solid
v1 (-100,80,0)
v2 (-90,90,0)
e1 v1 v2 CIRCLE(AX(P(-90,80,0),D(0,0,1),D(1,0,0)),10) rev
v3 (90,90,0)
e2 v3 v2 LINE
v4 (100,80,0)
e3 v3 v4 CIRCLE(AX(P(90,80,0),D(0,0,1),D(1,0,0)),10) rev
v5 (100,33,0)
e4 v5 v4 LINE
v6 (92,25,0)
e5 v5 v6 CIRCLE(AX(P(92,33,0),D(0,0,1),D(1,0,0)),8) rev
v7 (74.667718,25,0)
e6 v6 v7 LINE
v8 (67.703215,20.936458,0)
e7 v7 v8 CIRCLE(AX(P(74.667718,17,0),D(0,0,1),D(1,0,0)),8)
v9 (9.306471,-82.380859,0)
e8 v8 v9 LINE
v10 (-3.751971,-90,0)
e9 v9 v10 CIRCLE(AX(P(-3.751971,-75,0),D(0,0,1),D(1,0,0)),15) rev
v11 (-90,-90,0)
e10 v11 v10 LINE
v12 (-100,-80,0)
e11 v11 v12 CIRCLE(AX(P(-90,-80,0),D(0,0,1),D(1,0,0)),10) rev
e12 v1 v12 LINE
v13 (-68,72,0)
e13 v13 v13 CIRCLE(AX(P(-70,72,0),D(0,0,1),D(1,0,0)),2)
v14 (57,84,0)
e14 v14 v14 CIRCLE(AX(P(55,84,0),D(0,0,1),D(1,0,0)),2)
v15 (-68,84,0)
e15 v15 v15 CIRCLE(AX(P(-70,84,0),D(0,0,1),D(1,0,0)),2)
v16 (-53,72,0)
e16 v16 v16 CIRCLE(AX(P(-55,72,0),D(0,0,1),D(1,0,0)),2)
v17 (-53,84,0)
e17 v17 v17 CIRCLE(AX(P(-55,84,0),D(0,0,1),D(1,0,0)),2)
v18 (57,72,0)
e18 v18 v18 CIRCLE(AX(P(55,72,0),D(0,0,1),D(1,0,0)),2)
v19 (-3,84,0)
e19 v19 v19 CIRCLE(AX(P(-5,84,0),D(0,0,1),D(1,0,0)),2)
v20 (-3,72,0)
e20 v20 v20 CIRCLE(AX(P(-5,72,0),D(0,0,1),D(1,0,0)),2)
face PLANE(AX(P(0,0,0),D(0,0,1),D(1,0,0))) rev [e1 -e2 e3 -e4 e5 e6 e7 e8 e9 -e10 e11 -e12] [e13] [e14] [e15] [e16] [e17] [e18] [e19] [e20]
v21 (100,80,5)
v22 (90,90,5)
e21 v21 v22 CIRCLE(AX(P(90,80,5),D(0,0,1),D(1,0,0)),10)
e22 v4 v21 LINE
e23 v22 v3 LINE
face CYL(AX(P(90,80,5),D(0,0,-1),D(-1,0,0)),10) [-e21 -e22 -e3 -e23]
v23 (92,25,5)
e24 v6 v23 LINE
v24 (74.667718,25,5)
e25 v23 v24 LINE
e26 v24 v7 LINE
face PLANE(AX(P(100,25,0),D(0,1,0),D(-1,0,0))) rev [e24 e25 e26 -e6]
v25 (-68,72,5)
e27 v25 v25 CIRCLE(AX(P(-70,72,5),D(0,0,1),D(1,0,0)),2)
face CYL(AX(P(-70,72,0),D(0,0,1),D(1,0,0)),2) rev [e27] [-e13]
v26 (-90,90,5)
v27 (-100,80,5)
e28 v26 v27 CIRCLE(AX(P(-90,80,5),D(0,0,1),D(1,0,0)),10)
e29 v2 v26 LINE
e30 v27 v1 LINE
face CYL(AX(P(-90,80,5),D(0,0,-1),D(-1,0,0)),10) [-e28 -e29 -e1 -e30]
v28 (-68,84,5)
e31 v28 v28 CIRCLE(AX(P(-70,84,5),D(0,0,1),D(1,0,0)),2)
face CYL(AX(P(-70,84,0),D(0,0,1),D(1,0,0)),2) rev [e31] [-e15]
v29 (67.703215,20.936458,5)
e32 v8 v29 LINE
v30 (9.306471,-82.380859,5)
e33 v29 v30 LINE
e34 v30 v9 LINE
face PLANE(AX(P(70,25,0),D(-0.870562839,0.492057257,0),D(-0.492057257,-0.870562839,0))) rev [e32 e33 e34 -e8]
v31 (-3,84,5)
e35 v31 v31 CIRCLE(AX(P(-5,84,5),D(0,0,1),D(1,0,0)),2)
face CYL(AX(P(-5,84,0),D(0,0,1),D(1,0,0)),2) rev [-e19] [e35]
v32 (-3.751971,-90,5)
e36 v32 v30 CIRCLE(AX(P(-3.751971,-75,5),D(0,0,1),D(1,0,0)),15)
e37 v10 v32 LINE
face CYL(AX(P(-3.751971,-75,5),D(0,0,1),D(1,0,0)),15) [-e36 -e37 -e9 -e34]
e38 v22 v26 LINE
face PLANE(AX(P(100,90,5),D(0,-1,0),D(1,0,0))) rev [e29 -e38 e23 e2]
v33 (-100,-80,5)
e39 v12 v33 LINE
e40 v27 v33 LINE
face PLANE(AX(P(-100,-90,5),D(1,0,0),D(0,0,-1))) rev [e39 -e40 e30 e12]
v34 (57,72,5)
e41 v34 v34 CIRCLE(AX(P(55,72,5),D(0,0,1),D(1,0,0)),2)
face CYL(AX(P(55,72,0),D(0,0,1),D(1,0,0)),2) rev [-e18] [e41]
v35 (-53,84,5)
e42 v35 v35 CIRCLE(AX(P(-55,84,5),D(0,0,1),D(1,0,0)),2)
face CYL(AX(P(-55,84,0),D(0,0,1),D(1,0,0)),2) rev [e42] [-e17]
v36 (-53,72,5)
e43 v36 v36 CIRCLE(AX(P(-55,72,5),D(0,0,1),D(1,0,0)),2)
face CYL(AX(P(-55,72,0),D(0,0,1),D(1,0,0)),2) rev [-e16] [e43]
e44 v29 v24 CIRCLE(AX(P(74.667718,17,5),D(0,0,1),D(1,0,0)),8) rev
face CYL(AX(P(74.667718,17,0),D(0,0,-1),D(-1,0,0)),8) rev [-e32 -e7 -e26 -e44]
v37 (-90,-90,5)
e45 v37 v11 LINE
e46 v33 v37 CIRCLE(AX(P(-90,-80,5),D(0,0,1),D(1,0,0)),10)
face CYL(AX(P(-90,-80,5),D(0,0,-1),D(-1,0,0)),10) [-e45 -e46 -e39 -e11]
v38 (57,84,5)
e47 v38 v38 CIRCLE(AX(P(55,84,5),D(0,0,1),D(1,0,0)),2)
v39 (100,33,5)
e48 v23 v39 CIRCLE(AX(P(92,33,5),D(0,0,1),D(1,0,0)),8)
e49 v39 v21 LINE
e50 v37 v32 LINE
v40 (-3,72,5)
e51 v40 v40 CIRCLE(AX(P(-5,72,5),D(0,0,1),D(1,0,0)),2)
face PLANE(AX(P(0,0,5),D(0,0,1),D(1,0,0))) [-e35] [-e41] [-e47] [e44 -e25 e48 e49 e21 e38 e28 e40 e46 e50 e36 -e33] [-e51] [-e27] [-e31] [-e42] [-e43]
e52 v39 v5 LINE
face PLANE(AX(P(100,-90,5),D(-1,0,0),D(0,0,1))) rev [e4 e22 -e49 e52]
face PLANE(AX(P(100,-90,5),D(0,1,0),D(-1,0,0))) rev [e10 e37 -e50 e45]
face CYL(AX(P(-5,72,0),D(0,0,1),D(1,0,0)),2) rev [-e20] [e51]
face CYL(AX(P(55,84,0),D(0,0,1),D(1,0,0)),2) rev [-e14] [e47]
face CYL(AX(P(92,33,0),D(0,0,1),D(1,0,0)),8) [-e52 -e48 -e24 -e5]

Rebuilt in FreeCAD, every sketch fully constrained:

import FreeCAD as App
import Part
import Sketcher
from FreeCAD import Vector


def edges_at(feature, points):
    """Names of the edges that pass closest to the given points."""
    edges = feature.Shape.Edges
    near = lambda p: min(range(len(edges)), key=lambda i: edges[i].distToShape(Part.Vertex(*p))[0])
    return sorted({f"Edge{near(p) + 1}" for p in points})

doc = App.newDocument("Part")
body = doc.addObject("PartDesign::Body", "Body")

# Sketch on XY plane
sketch1 = doc.addObject("Sketcher::SketchObject", "Sketch")
body.addObject(sketch1)
sketch1.AttachmentSupport = (doc.XY_Plane, [""])
sketch1.MapMode = "FlatFace"
sketch1.addGeometry(Part.LineSegment(Vector(-100, 90, 0), Vector(-100, -90, 0)), False)
sketch1.addGeometry(Part.LineSegment(Vector(-100, -90, 0), Vector(100, -90, 0)), False)
sketch1.addGeometry(Part.LineSegment(Vector(100, -90, 0), Vector(100, 90, 0)), False)
sketch1.addGeometry(Part.LineSegment(Vector(100, 90, 0), Vector(-100, 90, 0)), False)
sketch1.addConstraint(Sketcher.Constraint("Coincident", 0, 2, 1, 1))
sketch1.addConstraint(Sketcher.Constraint("Coincident", 1, 2, 2, 1))
sketch1.addConstraint(Sketcher.Constraint("Coincident", 2, 2, 3, 1))
sketch1.addConstraint(Sketcher.Constraint("Coincident", 3, 2, 0, 1))
sketch1.addConstraint(Sketcher.Constraint("Vertical", 0))
sketch1.addConstraint(Sketcher.Constraint("Horizontal", 1))
sketch1.addConstraint(Sketcher.Constraint("Vertical", 2))
sketch1.addConstraint(Sketcher.Constraint("Horizontal", 3))
sketch1.addConstraint(Sketcher.Constraint("Symmetric", 0, 2, 2, 2, -1, 1))
sketch1.addConstraint(Sketcher.Constraint("DistanceX", 1, 1, 1, 2, 200.0))
sketch1.addConstraint(Sketcher.Constraint("DistanceY", 0, 2, 0, 1, 180.0))
pad1 = doc.addObject("PartDesign::Pad", "Pad")
body.addObject(pad1)
pad1.Profile = sketch1
pad1.Length = 5

# Sketch on XY plane
sketch2 = doc.addObject("Sketcher::SketchObject", "Sketch001")
body.addObject(sketch2)
sketch2.AttachmentSupport = (doc.XY_Plane, [""])
sketch2.MapMode = "FlatFace"
sketch2.AttachmentOffset = App.Placement(Vector(0, 0, 5), App.Rotation())
sketch2.addGeometry(Part.Circle(Vector(-70, 84, 0), Vector(0, 0, 1), 2), False)
sketch2.addGeometry(Part.Circle(Vector(-70, 72, 0), Vector(0, 0, 1), 2), False)
sketch2.addGeometry(Part.Circle(Vector(-55, 84, 0), Vector(0, 0, 1), 2), False)
sketch2.addGeometry(Part.Circle(Vector(-55, 72, 0), Vector(0, 0, 1), 2), False)
sketch2.addGeometry(Part.Circle(Vector(-5, 84, 0), Vector(0, 0, 1), 2), False)
sketch2.addGeometry(Part.Circle(Vector(-5, 72, 0), Vector(0, 0, 1), 2), False)
sketch2.addGeometry(Part.Circle(Vector(55, 84, 0), Vector(0, 0, 1), 2), False)
sketch2.addGeometry(Part.Circle(Vector(55, 72, 0), Vector(0, 0, 1), 2), False)
sketch2.addConstraint(Sketcher.Constraint("Equal", 0, 1))
sketch2.addConstraint(Sketcher.Constraint("Equal", 1, 2))
sketch2.addConstraint(Sketcher.Constraint("Equal", 2, 3))
sketch2.addConstraint(Sketcher.Constraint("Equal", 3, 4))
sketch2.addConstraint(Sketcher.Constraint("Equal", 4, 5))
sketch2.addConstraint(Sketcher.Constraint("Equal", 5, 6))
sketch2.addConstraint(Sketcher.Constraint("Equal", 6, 7))
sketch2.addConstraint(Sketcher.Constraint("Symmetric", 2, 3, 6, 3, -2))
sketch2.addConstraint(Sketcher.Constraint("Symmetric", 3, 3, 7, 3, -2))
sketch2.addConstraint(Sketcher.Constraint("Horizontal", 0, 3, 2, 3))
sketch2.addConstraint(Sketcher.Constraint("Horizontal", 1, 3, 3, 3))
sketch2.addConstraint(Sketcher.Constraint("Horizontal", 2, 3, 4, 3))
sketch2.addConstraint(Sketcher.Constraint("Horizontal", 3, 3, 5, 3))
sketch2.addConstraint(Sketcher.Constraint("Vertical", 0, 3, 1, 3))
sketch2.addConstraint(Sketcher.Constraint("Vertical", 2, 3, 3, 3))
sketch2.addConstraint(Sketcher.Constraint("Vertical", 4, 3, 5, 3))
sketch2.addConstraint(Sketcher.Constraint("Diameter", 0, 4.0))
sketch2.addConstraint(Sketcher.Constraint("DistanceX", 0, 3, -1, 1, 70.0))
sketch2.addConstraint(Sketcher.Constraint("DistanceY", -1, 1, 0, 3, 84.0))
sketch2.addConstraint(Sketcher.Constraint("DistanceY", -1, 1, 1, 3, 72.0))
sketch2.addConstraint(Sketcher.Constraint("DistanceX", 2, 3, -1, 1, 55.0))
sketch2.addConstraint(Sketcher.Constraint("DistanceX", 4, 3, -1, 1, 5.0))
pocket1 = doc.addObject("PartDesign::Pocket", "Pocket")
body.addObject(pocket1)
pocket1.Profile = sketch2
pocket1.Type = "ThroughAll"
doc.recompute()

fillet = doc.addObject("PartDesign::Fillet", "Fillet")
body.addObject(fillet)
fillet.Base = (pocket1, edges_at(pocket1, [
    (-100, 90, 2.5),
    (100, 90, 2.5),
    (100, -90, 2.5),
    (-100, -90, 2.5),
]))
fillet.Radius = 10

# Sketch on XY plane
sketch3 = doc.addObject("Sketcher::SketchObject", "Sketch002")
body.addObject(sketch3)
sketch3.AttachmentSupport = (doc.XY_Plane, [""])
sketch3.MapMode = "FlatFace"
sketch3.AttachmentOffset = App.Placement(Vector(0, 0, 5), App.Rotation())
sketch3.addGeometry(Part.LineSegment(Vector(70, 25, 0), Vector(70, -90, 0)), False)
sketch3.addGeometry(Part.LineSegment(Vector(70, -90, 0), Vector(100, -90, 0)), False)
sketch3.addGeometry(Part.LineSegment(Vector(100, -90, 0), Vector(100, 25, 0)), False)
sketch3.addGeometry(Part.LineSegment(Vector(100, 25, 0), Vector(70, 25, 0)), False)
sketch3.addConstraint(Sketcher.Constraint("Coincident", 0, 2, 1, 1))
sketch3.addConstraint(Sketcher.Constraint("Coincident", 1, 2, 2, 1))
sketch3.addConstraint(Sketcher.Constraint("Coincident", 2, 2, 3, 1))
sketch3.addConstraint(Sketcher.Constraint("Coincident", 3, 2, 0, 1))
sketch3.addConstraint(Sketcher.Constraint("Vertical", 0))
sketch3.addConstraint(Sketcher.Constraint("Horizontal", 1))
sketch3.addConstraint(Sketcher.Constraint("Vertical", 2))
sketch3.addConstraint(Sketcher.Constraint("Horizontal", 3))
sketch3.addConstraint(Sketcher.Constraint("DistanceX", 1, 1, 1, 2, 30.0))
sketch3.addConstraint(Sketcher.Constraint("DistanceY", 0, 2, 0, 1, 115.0))
sketch3.addConstraint(Sketcher.Constraint("DistanceX", -1, 1, 0, 2, 70.0))
sketch3.addConstraint(Sketcher.Constraint("DistanceY", 0, 2, -1, 1, 90.0))
pocket2 = doc.addObject("PartDesign::Pocket", "Pocket001")
body.addObject(pocket2)
pocket2.Profile = sketch3
pocket2.Type = "ThroughAll"

# Sketch on XY plane
sketch4 = doc.addObject("Sketcher::SketchObject", "Sketch003")
body.addObject(sketch4)
sketch4.AttachmentSupport = (doc.XY_Plane, [""])
sketch4.MapMode = "FlatFace"
sketch4.AttachmentOffset = App.Placement(Vector(0, 0, 5), App.Rotation())
sketch4.addGeometry(Part.LineSegment(Vector(70, 25, 0), Vector(5, -90, 0)), False)
sketch4.addGeometry(Part.LineSegment(Vector(5, -90, 0), Vector(70, -90, 0)), False)
sketch4.addGeometry(Part.LineSegment(Vector(70, -90, 0), Vector(70, 25, 0)), False)
sketch4.addConstraint(Sketcher.Constraint("Coincident", 0, 2, 1, 1))
sketch4.addConstraint(Sketcher.Constraint("Coincident", 1, 2, 2, 1))
sketch4.addConstraint(Sketcher.Constraint("Coincident", 2, 2, 0, 1))
sketch4.addConstraint(Sketcher.Constraint("Horizontal", 1))
sketch4.addConstraint(Sketcher.Constraint("Vertical", 2))
sketch4.addConstraint(Sketcher.Constraint("DistanceX", 1, 1, 1, 2, 65.0))
sketch4.addConstraint(Sketcher.Constraint("DistanceY", 2, 1, 2, 2, 115.0))
sketch4.addConstraint(Sketcher.Constraint("DistanceX", -1, 1, 0, 2, 5.0))
sketch4.addConstraint(Sketcher.Constraint("DistanceY", 0, 2, -1, 1, 90.0))
pocket3 = doc.addObject("PartDesign::Pocket", "Pocket002")
body.addObject(pocket3)
pocket3.Profile = sketch4
pocket3.Type = "ThroughAll"
doc.recompute()

fillet2 = doc.addObject("PartDesign::Fillet", "Fillet001")
body.addObject(fillet2)
fillet2.Base = (pocket3, edges_at(pocket3, [(100, 25, 2.5), (70, 25, 2.5)]))
fillet2.Radius = 8
doc.recompute()

fillet3 = doc.addObject("PartDesign::Fillet", "Fillet002")
body.addObject(fillet3)
fillet3.Base = (fillet2, edges_at(fillet2, [(5, -90, 2.5)]))
fillet3.Radius = 15

doc.recompute()
